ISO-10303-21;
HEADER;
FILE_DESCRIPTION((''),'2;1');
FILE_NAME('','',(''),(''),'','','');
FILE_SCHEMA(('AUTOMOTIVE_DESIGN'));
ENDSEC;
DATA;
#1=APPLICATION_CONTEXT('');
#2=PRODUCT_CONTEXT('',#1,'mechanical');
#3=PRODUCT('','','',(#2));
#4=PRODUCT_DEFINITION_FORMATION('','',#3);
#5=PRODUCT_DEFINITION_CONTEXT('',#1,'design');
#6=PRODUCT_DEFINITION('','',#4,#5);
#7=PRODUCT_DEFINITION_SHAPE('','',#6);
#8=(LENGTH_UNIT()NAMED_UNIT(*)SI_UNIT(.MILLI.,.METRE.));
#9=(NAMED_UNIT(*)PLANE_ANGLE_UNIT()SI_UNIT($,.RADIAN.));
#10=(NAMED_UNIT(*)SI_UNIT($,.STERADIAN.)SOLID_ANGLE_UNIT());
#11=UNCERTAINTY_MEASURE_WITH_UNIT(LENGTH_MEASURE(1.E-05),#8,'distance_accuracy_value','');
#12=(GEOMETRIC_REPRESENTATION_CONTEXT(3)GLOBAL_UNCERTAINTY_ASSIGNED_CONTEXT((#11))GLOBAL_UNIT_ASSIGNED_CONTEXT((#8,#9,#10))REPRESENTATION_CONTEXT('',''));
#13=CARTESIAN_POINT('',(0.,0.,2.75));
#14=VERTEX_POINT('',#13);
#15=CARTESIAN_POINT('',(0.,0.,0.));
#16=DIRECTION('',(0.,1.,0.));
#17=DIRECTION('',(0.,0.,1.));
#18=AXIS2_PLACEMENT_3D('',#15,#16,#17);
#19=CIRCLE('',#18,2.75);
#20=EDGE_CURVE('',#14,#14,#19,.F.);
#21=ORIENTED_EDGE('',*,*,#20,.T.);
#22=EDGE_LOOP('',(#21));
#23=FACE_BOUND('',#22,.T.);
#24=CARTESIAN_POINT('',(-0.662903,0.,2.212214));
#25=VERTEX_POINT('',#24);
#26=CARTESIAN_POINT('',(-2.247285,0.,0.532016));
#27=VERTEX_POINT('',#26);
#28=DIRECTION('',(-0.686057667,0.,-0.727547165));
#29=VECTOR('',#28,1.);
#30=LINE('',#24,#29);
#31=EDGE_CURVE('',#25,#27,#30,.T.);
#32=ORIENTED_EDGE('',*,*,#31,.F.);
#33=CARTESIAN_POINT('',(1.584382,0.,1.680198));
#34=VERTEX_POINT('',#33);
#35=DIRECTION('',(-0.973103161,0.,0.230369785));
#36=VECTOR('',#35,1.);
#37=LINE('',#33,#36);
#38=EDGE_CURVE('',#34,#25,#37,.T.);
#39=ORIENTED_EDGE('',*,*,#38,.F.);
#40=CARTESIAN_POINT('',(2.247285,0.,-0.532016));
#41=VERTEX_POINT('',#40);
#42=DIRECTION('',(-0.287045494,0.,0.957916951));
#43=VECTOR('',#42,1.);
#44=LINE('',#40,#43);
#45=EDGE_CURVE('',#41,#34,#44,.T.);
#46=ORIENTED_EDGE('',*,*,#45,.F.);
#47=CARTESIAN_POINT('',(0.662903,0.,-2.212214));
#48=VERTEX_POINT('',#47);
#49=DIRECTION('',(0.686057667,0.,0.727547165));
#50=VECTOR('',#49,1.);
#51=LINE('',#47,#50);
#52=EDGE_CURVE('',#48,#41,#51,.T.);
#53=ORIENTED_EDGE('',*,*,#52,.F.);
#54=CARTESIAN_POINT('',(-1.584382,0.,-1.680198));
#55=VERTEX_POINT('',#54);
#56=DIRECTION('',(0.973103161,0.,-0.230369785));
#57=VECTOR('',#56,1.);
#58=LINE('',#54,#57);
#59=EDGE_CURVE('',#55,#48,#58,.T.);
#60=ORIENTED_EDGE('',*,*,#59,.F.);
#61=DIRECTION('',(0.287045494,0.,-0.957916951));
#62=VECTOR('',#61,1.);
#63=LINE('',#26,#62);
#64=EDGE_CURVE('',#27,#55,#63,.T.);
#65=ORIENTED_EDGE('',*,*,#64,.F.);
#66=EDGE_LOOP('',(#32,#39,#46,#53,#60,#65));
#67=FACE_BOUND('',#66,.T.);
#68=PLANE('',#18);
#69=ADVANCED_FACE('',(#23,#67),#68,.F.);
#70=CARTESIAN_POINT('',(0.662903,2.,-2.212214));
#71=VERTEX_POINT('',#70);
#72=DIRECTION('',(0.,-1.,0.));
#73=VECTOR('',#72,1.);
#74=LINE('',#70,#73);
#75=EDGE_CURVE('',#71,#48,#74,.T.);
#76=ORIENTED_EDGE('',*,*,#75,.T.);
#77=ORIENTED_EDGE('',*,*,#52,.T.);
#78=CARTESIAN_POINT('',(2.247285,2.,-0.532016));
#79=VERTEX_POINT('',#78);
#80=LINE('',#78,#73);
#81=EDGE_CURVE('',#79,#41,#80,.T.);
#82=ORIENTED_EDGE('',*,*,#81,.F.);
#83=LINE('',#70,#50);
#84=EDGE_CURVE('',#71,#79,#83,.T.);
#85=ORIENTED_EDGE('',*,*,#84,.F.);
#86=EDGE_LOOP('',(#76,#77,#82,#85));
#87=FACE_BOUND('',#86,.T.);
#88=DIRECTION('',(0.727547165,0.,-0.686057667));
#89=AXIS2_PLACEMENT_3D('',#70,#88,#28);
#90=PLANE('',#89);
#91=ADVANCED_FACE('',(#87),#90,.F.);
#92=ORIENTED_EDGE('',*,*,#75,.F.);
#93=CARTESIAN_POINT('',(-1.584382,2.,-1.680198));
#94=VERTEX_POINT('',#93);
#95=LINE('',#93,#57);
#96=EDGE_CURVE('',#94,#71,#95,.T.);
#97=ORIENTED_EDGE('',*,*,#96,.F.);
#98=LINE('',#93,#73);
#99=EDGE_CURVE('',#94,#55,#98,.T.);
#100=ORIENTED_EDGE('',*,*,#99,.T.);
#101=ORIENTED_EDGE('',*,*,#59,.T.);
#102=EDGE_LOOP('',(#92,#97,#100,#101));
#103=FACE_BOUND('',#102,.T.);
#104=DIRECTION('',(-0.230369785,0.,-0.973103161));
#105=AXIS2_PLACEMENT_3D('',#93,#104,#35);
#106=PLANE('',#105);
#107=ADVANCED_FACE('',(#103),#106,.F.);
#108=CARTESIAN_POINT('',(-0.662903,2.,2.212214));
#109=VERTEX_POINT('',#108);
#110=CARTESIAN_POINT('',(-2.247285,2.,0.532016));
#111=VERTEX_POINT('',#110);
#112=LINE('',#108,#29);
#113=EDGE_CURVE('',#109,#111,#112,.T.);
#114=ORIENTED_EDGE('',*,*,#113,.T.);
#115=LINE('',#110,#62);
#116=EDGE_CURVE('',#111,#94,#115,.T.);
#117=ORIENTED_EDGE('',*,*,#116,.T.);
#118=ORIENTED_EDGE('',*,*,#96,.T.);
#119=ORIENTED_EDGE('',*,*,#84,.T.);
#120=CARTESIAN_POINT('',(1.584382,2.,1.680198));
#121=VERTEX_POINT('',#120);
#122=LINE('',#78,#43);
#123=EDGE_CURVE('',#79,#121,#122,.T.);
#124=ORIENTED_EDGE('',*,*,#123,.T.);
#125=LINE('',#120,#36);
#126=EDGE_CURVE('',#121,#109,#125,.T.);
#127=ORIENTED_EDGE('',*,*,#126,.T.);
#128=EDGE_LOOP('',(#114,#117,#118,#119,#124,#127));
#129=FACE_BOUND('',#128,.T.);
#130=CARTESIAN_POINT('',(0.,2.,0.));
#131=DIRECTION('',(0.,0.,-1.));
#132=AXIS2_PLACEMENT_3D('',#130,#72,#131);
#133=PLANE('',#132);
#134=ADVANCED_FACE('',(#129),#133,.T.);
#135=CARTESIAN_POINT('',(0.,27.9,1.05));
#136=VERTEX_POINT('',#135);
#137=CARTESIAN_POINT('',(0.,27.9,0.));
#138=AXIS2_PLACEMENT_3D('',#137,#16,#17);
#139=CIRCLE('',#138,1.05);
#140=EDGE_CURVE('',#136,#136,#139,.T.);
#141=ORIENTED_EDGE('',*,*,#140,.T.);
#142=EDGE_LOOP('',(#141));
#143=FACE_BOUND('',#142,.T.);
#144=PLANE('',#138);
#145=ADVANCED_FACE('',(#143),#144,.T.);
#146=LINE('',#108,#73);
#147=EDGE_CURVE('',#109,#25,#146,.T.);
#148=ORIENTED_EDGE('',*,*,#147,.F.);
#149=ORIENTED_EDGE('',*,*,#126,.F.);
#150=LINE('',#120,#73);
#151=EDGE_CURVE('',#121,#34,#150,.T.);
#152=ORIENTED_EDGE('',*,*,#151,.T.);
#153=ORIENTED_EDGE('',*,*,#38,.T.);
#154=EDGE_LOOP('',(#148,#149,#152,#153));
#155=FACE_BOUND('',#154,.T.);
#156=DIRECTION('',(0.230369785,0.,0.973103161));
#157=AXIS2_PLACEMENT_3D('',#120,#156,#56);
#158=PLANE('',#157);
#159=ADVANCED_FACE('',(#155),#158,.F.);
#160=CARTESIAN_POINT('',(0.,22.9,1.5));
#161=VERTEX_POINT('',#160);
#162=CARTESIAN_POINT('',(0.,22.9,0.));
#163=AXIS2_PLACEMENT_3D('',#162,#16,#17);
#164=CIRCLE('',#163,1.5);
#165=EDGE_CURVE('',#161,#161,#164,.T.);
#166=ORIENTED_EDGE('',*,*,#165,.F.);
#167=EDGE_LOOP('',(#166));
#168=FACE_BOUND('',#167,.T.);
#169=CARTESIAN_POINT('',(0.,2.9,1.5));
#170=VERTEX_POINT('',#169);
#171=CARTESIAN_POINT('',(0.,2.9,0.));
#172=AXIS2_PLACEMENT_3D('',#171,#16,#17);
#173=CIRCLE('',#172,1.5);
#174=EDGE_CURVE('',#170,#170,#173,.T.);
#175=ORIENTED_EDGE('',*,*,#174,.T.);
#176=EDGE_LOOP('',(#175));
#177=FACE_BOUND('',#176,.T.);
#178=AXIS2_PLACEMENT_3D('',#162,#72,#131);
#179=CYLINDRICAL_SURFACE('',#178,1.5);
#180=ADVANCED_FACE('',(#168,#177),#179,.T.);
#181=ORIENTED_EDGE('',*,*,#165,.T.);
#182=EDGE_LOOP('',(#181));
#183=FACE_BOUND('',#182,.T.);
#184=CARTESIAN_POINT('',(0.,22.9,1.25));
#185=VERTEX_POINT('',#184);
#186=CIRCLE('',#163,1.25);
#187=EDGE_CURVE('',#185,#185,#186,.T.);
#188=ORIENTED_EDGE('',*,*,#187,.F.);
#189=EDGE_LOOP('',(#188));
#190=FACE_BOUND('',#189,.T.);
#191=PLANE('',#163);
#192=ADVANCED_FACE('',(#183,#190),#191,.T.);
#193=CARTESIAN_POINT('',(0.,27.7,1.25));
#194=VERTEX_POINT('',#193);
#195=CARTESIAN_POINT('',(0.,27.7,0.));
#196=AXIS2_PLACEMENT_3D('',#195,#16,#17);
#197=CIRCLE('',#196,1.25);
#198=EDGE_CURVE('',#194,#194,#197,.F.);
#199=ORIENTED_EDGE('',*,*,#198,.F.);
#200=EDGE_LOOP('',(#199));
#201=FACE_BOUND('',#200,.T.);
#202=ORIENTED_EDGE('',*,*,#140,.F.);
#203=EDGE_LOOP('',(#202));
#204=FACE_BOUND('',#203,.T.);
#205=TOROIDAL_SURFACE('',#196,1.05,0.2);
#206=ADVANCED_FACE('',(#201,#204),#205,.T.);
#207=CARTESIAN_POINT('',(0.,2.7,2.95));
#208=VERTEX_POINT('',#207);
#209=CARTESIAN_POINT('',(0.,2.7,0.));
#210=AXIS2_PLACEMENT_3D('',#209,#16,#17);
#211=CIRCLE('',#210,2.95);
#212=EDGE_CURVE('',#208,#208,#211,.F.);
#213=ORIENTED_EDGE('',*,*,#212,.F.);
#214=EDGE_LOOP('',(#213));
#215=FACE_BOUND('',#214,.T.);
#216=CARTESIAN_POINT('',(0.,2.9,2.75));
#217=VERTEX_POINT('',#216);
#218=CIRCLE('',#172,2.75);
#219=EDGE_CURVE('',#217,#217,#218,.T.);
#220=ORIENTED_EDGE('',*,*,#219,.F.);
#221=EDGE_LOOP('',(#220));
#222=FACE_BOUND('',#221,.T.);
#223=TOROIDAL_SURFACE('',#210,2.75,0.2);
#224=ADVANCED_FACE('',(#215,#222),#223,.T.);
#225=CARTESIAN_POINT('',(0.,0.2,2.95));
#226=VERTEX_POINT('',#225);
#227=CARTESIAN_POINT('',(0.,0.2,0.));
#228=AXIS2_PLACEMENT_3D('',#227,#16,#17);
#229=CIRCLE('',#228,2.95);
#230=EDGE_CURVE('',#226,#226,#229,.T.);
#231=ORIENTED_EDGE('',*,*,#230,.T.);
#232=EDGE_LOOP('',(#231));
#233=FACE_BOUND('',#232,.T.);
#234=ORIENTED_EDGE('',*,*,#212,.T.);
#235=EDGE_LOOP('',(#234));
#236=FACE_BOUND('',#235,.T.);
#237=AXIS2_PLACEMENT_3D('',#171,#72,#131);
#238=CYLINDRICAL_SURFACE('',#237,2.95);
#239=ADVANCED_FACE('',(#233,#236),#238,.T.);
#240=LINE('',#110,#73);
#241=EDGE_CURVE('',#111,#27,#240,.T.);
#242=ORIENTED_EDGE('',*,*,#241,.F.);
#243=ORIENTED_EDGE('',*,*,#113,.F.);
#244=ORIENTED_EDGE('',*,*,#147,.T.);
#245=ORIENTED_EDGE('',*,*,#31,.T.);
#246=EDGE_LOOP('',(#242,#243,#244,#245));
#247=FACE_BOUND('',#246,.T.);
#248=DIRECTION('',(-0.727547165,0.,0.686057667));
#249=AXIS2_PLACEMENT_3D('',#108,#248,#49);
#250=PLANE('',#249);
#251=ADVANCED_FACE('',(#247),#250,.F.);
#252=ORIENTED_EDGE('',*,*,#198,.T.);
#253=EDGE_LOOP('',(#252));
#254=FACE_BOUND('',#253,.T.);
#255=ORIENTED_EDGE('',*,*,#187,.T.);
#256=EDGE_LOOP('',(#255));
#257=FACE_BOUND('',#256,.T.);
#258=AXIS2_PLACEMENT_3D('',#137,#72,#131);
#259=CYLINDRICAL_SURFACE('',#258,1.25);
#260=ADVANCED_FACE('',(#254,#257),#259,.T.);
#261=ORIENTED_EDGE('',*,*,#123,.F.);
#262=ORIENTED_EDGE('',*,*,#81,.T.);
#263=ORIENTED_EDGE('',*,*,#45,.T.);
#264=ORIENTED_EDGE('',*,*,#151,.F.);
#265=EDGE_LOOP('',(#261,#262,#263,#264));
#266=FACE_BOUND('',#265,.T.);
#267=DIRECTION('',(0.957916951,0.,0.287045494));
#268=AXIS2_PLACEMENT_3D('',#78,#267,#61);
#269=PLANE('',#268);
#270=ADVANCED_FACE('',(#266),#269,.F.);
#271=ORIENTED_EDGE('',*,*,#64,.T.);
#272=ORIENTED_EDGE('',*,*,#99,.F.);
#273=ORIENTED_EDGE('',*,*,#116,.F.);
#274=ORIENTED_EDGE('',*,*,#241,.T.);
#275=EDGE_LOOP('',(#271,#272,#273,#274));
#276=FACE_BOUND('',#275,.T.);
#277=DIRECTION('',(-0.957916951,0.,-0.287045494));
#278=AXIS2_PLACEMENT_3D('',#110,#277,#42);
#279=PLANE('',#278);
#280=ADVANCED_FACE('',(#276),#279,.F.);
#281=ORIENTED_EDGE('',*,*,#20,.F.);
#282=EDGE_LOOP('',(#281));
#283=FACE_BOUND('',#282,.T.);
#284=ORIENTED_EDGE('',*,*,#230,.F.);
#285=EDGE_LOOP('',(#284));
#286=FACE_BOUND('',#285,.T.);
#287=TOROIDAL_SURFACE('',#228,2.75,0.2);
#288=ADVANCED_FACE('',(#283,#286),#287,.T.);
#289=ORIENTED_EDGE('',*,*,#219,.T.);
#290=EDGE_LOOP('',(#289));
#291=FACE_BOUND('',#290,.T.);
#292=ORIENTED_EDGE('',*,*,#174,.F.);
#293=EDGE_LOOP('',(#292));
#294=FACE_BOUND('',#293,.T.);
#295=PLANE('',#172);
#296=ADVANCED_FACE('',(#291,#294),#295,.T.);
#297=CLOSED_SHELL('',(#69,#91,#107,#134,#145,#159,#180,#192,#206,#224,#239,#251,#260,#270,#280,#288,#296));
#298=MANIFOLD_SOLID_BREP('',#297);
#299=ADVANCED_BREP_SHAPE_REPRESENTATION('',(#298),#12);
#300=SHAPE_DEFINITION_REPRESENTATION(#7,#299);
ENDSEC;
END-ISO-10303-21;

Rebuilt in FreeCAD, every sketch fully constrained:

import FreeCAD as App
import Part
import Sketcher
Q = App.Units.Quantity


def edges_at(feature, points):
    """Names of the edges that pass closest to the given points."""
    edges = feature.Shape.Edges
    near = lambda p: min(range(len(edges)), key=lambda i: edges[i].distToShape(Part.Vertex(*p))[0])
    return sorted({f"Edge{near(p) + 1}" for p in points})

doc = App.newDocument("Part")
body = doc.addObject("PartDesign::Body", "Body")

sketch1 = doc.addObject("Sketcher::SketchObject", "Sketch")
body.addObject(sketch1)
sketch1.AttachmentSupport = (doc.XZ_Plane, [""])
sketch1.MapMode = "FlatFace"
sketch1.addGeometry(Part.Circle(App.Vector(0, 0, 0), App.Vector(0, 0, 1), 3), False)
sketch1.addConstraint([
    Sketcher.Constraint("Coincident", 0, 3, -1, 1),
    Sketcher.Constraint("Diameter", 0, Q("5.9 mm")),
])
pad1 = doc.addObject("PartDesign::Pad", "Pad")
body.addObject(pad1)
pad1.Profile = sketch1
pad1.Length = 2.9
pad1.Reversed = True

sketch2 = doc.addObject("Sketcher::SketchObject", "Sketch001")
body.addObject(sketch2)
sketch2.AttachmentSupport = (doc.XZ_Plane, [""])
sketch2.MapMode = "FlatFace"
sketch2.AttachmentOffset = App.Placement(App.Vector(0, 0, -2.9), App.Rotation())
sketch2.addGeometry(Part.Circle(App.Vector(0, 0, 0), App.Vector(0, 0, 1), 1.5), False)
sketch2.addConstraint([
    Sketcher.Constraint("Coincident", 0, 3, -1, 1),
    Sketcher.Constraint("Diameter", 0, Q("3 mm")),
])
pad2 = doc.addObject("PartDesign::Pad", "Pad001")
body.addObject(pad2)
pad2.Profile = sketch2
pad2.Length = 20
pad2.Reversed = True

sketch3 = doc.addObject("Sketcher::SketchObject", "Sketch002")
body.addObject(sketch3)
sketch3.AttachmentSupport = (doc.XZ_Plane, [""])
sketch3.MapMode = "FlatFace"
sketch3.AttachmentOffset = App.Placement(App.Vector(0, 0, -22.9), App.Rotation())
sketch3.addGeometry(Part.Circle(App.Vector(0, 0, 0), App.Vector(0, 0, 1), 1.2), False)
sketch3.addConstraint([
    Sketcher.Constraint("Coincident", 0, 3, -1, 1),
    Sketcher.Constraint("Diameter", 0, Q("2.5 mm")),
])
pad3 = doc.addObject("PartDesign::Pad", "Pad002")
body.addObject(pad3)
pad3.Profile = sketch3
pad3.Length = 5
pad3.Reversed = True

sketch4 = doc.addObject("Sketcher::SketchObject", "Sketch003")
body.addObject(sketch4)
sketch4.AttachmentSupport = (doc.XZ_Plane, [""])
sketch4.MapMode = "FlatFace"
sketch4.addGeometry([
    Part.LineSegment(App.Vector(2.2, -0.5, 0), App.Vector(1.6, 1.7, 0)),
    Part.LineSegment(App.Vector(1.6, 1.7, 0), App.Vector(-0.7, 2.2, 0)),
    Part.LineSegment(App.Vector(-0.7, 2.2, 0), App.Vector(-2.2, 0.5, 0)),
    Part.LineSegment(App.Vector(-2.2, 0.5, 0), App.Vector(-1.6, -1.7, 0)),
    Part.LineSegment(App.Vector(-1.6, -1.7, 0), App.Vector(0.7, -2.2, 0)),
    Part.LineSegment(App.Vector(0.7, -2.2, 0), App.Vector(2.2, -0.5, 0)),
], False)
sketch4.addConstraint([
    Sketcher.Constraint("Coincident", 0, 2, 1, 1),
    Sketcher.Constraint("Coincident", 1, 2, 2, 1),
    Sketcher.Constraint("Coincident", 2, 2, 3, 1),
    Sketcher.Constraint("Coincident", 3, 2, 4, 1),
    Sketcher.Constraint("Coincident", 4, 2, 5, 1),
    Sketcher.Constraint("Coincident", 5, 2, 0, 1),
    Sketcher.Constraint("Symmetric", 0, 2, 3, 2, -1, 1),
    Sketcher.Constraint("Symmetric", 1, 2, 4, 2, -1, 1),
    Sketcher.Constraint("Symmetric", 2, 2, 5, 2, -1, 1),
    Sketcher.Constraint("Equal", 0, 1),
    Sketcher.Constraint("Equal", 1, 2),
    Sketcher.Constraint("Distance", 0, Q("2.309401 mm")),
    Sketcher.Constraint("DistanceY", -1, 1, 0, 2, Q("1.680198 mm")),
    Sketcher.Constraint("DistanceY", 2, 2, 1, 2, Q("1.680198 mm")),
    Sketcher.Constraint("DistanceY", 2, 2, 0, 2, Q("1.148182 mm")),
])
pocket1 = doc.addObject("PartDesign::Pocket", "Pocket")
body.addObject(pocket1)
pocket1.Profile = sketch4
pocket1.Length = 2
doc.recompute()

fillet = doc.addObject("PartDesign::Fillet", "Fillet")
body.addObject(fillet)
fillet.Base = (pocket1, edges_at(pocket1, [(0, 27.9, -1.25), (0, 0, -2.95), (0, 2.9, -2.95)]))
fillet.Radius = 0.2

doc.recompute()
